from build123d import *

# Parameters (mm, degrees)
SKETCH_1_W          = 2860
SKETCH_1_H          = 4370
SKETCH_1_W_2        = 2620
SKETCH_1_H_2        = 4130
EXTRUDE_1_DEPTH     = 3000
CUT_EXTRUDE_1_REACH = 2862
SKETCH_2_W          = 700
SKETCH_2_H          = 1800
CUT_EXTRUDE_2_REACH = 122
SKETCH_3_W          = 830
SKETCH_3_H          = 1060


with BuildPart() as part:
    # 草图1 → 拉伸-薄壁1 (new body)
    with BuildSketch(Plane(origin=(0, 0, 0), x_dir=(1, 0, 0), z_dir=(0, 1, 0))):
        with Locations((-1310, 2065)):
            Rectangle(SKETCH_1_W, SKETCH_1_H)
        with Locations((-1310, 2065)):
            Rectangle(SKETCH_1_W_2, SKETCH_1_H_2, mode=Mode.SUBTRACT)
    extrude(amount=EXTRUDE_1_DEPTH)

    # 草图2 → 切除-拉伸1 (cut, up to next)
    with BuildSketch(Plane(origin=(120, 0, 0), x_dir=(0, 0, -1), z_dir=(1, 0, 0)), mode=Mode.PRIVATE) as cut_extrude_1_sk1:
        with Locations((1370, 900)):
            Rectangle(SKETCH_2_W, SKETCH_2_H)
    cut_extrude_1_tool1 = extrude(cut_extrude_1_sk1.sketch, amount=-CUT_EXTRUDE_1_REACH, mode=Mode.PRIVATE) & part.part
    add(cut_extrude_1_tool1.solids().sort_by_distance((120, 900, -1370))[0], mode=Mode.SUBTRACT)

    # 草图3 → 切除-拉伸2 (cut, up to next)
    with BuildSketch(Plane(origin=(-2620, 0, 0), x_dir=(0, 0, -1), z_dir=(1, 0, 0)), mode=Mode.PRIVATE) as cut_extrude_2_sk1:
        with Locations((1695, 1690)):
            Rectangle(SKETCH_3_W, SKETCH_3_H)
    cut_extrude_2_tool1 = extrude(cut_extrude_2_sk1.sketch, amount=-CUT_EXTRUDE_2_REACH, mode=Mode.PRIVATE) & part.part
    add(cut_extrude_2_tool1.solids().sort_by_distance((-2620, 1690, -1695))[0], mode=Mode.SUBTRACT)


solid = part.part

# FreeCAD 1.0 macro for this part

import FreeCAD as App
import Part
import Sketcher
from FreeCAD import Vector

doc = App.newDocument("Part")
body = doc.addObject("PartDesign::Body", "Body")

# Sketch on XZ plane
sketch1 = body.newObject("Sketcher::SketchObject", "Sketch")
sketch1.AttachmentSupport = (doc.getObject("XZ_Plane"), [""])
sketch1.MapMode = "FlatFace"
sketch1.addGeometry([
    Part.LineSegment(Vector(-2740, -4250, 0), Vector(-2740, 120, 0)),  # 0
    Part.LineSegment(Vector(-2740, 120, 0), Vector(120, 120, 0)),  # 1
    Part.LineSegment(Vector(120, 120, 0), Vector(120, -4250, 0)),  # 2
    Part.LineSegment(Vector(120, -4250, 0), Vector(-2740, -4250, 0)),  # 3
    Part.LineSegment(Vector(0, 0, 0), Vector(-2620, 0, 0)),  # 4
    Part.LineSegment(Vector(-2620, 0, 0), Vector(-2620, -4130, 0)),  # 5
    Part.LineSegment(Vector(-2620, -4130, 0), Vector(0, -4130, 0)),  # 6
    Part.LineSegment(Vector(0, -4130, 0), Vector(0, 0, 0)),  # 7
], False)
sketch1.addConstraint([
    Sketcher.Constraint("Coincident", 0, 2, 1, 1),
    Sketcher.Constraint("Coincident", 1, 2, 2, 1),
    Sketcher.Constraint("Coincident", 2, 2, 3, 1),
    Sketcher.Constraint("Coincident", 3, 2, 0, 1),
    Sketcher.Constraint("Coincident", 4, 2, 5, 1),
    Sketcher.Constraint("Coincident", 5, 2, 6, 1),
    Sketcher.Constraint("Coincident", 6, 2, 7, 1),
    Sketcher.Constraint("Coincident", 7, 2, 4, 1),
    Sketcher.Constraint("Vertical", 0),
    Sketcher.Constraint("Horizontal", 1),
    Sketcher.Constraint("Vertical", 2),
    Sketcher.Constraint("Horizontal", 3),
    Sketcher.Constraint("Horizontal", 4),
    Sketcher.Constraint("Vertical", 5),
    Sketcher.Constraint("Horizontal", 6),
    Sketcher.Constraint("Vertical", 7),
    Sketcher.Constraint("Coincident", 7, 2, -1, 1),
    Sketcher.Constraint("DistanceX", 1, 1, 1, 2, 2860.0),
    Sketcher.Constraint("DistanceX", 4, 2, 4, 1, 2620.0),
    Sketcher.Constraint("DistanceY", 0, 1, 0, 2, 4370.0),
    Sketcher.Constraint("DistanceY", 5, 2, 5, 1, 4130.0),
    Sketcher.Constraint("DistanceX", 0, 2, -1, 1, 2740.0),
    Sketcher.Constraint("DistanceY", -1, 1, 0, 2, 120.0),
])
pad1 = body.newObject("PartDesign::Pad", "Pad")
pad1.Profile = sketch1
pad1.Length = 3000
pad1.Reversed = True

# Sketch on YZ plane
sketch2 = body.newObject("Sketcher::SketchObject", "Sketch001")
sketch2.AttachmentSupport = (doc.getObject("YZ_Plane"), [""])
sketch2.MapMode = "FlatFace"
sketch2.AttachmentOffset = App.Placement(Vector(0, 0, 120), App.Rotation())
sketch2.addGeometry([
    Part.LineSegment(Vector(1800, -1020, 0), Vector(0, -1020, 0)),
    Part.LineSegment(Vector(0, -1020, 0), Vector(0, -1720, 0)),
    Part.LineSegment(Vector(0, -1720, 0), Vector(1800, -1720, 0)),
    Part.LineSegment(Vector(1800, -1720, 0), Vector(1800, -1020, 0)),
], False)
sketch2.addConstraint([
    Sketcher.Constraint("Coincident", 0, 2, 1, 1),
    Sketcher.Constraint("Coincident", 1, 2, 2, 1),
    Sketcher.Constraint("Coincident", 2, 2, 3, 1),
    Sketcher.Constraint("Coincident", 3, 2, 0, 1),
    Sketcher.Constraint("Horizontal", 0),
    Sketcher.Constraint("Vertical", 1),
    Sketcher.Constraint("Horizontal", 2),
    Sketcher.Constraint("Vertical", 3),
    Sketcher.Constraint("PointOnObject", 0, 2, -2),
    Sketcher.Constraint("DistanceX", 0, 2, 0, 1, 1800.0),
    Sketcher.Constraint("DistanceY", 1, 2, 1, 1, 700.0),
    Sketcher.Constraint("DistanceY", 0, 2, -1, 1, 1020.0),
])
pocket1 = body.newObject("PartDesign::Pocket", "Pocket")
pocket1.Profile = sketch2
pocket1.Type = "UpToFirst"

# Sketch on YZ plane
sketch3 = body.newObject("Sketcher::SketchObject", "Sketch002")
sketch3.AttachmentSupport = (doc.getObject("YZ_Plane"), [""])
sketch3.MapMode = "FlatFace"
sketch3.AttachmentOffset = App.Placement(Vector(0, 0, -2620), App.Rotation())
sketch3.addGeometry([
    Part.LineSegment(Vector(2220, -1280, 0), Vector(1160, -1280, 0)),
    Part.LineSegment(Vector(1160, -1280, 0), Vector(1160, -2110, 0)),
    Part.LineSegment(Vector(1160, -2110, 0), Vector(2220, -2110, 0)),
    Part.LineSegment(Vector(2220, -2110, 0), Vector(2220, -1280, 0)),
], False)
sketch3.addConstraint([
    Sketcher.Constraint("Coincident", 0, 2, 1, 1),
    Sketcher.Constraint("Coincident", 1, 2, 2, 1),
    Sketcher.Constraint("Coincident", 2, 2, 3, 1),
    Sketcher.Constraint("Coincident", 3, 2, 0, 1),
    Sketcher.Constraint("Horizontal", 0),
    Sketcher.Constraint("Vertical", 1),
    Sketcher.Constraint("Horizontal", 2),
    Sketcher.Constraint("Vertical", 3),
    Sketcher.Constraint("DistanceX", 0, 2, 0, 1, 1060.0),
    Sketcher.Constraint("DistanceY", 1, 2, 1, 1, 830.0),
    Sketcher.Constraint("DistanceX", -1, 1, 0, 2, 1160.0),
    Sketcher.Constraint("DistanceY", 0, 2, -1, 1, 1280.0),
])
pocket2 = body.newObject("PartDesign::Pocket", "Pocket001")
pocket2.Profile = sketch3
pocket2.Type = "UpToFirst"

doc.recompute()
